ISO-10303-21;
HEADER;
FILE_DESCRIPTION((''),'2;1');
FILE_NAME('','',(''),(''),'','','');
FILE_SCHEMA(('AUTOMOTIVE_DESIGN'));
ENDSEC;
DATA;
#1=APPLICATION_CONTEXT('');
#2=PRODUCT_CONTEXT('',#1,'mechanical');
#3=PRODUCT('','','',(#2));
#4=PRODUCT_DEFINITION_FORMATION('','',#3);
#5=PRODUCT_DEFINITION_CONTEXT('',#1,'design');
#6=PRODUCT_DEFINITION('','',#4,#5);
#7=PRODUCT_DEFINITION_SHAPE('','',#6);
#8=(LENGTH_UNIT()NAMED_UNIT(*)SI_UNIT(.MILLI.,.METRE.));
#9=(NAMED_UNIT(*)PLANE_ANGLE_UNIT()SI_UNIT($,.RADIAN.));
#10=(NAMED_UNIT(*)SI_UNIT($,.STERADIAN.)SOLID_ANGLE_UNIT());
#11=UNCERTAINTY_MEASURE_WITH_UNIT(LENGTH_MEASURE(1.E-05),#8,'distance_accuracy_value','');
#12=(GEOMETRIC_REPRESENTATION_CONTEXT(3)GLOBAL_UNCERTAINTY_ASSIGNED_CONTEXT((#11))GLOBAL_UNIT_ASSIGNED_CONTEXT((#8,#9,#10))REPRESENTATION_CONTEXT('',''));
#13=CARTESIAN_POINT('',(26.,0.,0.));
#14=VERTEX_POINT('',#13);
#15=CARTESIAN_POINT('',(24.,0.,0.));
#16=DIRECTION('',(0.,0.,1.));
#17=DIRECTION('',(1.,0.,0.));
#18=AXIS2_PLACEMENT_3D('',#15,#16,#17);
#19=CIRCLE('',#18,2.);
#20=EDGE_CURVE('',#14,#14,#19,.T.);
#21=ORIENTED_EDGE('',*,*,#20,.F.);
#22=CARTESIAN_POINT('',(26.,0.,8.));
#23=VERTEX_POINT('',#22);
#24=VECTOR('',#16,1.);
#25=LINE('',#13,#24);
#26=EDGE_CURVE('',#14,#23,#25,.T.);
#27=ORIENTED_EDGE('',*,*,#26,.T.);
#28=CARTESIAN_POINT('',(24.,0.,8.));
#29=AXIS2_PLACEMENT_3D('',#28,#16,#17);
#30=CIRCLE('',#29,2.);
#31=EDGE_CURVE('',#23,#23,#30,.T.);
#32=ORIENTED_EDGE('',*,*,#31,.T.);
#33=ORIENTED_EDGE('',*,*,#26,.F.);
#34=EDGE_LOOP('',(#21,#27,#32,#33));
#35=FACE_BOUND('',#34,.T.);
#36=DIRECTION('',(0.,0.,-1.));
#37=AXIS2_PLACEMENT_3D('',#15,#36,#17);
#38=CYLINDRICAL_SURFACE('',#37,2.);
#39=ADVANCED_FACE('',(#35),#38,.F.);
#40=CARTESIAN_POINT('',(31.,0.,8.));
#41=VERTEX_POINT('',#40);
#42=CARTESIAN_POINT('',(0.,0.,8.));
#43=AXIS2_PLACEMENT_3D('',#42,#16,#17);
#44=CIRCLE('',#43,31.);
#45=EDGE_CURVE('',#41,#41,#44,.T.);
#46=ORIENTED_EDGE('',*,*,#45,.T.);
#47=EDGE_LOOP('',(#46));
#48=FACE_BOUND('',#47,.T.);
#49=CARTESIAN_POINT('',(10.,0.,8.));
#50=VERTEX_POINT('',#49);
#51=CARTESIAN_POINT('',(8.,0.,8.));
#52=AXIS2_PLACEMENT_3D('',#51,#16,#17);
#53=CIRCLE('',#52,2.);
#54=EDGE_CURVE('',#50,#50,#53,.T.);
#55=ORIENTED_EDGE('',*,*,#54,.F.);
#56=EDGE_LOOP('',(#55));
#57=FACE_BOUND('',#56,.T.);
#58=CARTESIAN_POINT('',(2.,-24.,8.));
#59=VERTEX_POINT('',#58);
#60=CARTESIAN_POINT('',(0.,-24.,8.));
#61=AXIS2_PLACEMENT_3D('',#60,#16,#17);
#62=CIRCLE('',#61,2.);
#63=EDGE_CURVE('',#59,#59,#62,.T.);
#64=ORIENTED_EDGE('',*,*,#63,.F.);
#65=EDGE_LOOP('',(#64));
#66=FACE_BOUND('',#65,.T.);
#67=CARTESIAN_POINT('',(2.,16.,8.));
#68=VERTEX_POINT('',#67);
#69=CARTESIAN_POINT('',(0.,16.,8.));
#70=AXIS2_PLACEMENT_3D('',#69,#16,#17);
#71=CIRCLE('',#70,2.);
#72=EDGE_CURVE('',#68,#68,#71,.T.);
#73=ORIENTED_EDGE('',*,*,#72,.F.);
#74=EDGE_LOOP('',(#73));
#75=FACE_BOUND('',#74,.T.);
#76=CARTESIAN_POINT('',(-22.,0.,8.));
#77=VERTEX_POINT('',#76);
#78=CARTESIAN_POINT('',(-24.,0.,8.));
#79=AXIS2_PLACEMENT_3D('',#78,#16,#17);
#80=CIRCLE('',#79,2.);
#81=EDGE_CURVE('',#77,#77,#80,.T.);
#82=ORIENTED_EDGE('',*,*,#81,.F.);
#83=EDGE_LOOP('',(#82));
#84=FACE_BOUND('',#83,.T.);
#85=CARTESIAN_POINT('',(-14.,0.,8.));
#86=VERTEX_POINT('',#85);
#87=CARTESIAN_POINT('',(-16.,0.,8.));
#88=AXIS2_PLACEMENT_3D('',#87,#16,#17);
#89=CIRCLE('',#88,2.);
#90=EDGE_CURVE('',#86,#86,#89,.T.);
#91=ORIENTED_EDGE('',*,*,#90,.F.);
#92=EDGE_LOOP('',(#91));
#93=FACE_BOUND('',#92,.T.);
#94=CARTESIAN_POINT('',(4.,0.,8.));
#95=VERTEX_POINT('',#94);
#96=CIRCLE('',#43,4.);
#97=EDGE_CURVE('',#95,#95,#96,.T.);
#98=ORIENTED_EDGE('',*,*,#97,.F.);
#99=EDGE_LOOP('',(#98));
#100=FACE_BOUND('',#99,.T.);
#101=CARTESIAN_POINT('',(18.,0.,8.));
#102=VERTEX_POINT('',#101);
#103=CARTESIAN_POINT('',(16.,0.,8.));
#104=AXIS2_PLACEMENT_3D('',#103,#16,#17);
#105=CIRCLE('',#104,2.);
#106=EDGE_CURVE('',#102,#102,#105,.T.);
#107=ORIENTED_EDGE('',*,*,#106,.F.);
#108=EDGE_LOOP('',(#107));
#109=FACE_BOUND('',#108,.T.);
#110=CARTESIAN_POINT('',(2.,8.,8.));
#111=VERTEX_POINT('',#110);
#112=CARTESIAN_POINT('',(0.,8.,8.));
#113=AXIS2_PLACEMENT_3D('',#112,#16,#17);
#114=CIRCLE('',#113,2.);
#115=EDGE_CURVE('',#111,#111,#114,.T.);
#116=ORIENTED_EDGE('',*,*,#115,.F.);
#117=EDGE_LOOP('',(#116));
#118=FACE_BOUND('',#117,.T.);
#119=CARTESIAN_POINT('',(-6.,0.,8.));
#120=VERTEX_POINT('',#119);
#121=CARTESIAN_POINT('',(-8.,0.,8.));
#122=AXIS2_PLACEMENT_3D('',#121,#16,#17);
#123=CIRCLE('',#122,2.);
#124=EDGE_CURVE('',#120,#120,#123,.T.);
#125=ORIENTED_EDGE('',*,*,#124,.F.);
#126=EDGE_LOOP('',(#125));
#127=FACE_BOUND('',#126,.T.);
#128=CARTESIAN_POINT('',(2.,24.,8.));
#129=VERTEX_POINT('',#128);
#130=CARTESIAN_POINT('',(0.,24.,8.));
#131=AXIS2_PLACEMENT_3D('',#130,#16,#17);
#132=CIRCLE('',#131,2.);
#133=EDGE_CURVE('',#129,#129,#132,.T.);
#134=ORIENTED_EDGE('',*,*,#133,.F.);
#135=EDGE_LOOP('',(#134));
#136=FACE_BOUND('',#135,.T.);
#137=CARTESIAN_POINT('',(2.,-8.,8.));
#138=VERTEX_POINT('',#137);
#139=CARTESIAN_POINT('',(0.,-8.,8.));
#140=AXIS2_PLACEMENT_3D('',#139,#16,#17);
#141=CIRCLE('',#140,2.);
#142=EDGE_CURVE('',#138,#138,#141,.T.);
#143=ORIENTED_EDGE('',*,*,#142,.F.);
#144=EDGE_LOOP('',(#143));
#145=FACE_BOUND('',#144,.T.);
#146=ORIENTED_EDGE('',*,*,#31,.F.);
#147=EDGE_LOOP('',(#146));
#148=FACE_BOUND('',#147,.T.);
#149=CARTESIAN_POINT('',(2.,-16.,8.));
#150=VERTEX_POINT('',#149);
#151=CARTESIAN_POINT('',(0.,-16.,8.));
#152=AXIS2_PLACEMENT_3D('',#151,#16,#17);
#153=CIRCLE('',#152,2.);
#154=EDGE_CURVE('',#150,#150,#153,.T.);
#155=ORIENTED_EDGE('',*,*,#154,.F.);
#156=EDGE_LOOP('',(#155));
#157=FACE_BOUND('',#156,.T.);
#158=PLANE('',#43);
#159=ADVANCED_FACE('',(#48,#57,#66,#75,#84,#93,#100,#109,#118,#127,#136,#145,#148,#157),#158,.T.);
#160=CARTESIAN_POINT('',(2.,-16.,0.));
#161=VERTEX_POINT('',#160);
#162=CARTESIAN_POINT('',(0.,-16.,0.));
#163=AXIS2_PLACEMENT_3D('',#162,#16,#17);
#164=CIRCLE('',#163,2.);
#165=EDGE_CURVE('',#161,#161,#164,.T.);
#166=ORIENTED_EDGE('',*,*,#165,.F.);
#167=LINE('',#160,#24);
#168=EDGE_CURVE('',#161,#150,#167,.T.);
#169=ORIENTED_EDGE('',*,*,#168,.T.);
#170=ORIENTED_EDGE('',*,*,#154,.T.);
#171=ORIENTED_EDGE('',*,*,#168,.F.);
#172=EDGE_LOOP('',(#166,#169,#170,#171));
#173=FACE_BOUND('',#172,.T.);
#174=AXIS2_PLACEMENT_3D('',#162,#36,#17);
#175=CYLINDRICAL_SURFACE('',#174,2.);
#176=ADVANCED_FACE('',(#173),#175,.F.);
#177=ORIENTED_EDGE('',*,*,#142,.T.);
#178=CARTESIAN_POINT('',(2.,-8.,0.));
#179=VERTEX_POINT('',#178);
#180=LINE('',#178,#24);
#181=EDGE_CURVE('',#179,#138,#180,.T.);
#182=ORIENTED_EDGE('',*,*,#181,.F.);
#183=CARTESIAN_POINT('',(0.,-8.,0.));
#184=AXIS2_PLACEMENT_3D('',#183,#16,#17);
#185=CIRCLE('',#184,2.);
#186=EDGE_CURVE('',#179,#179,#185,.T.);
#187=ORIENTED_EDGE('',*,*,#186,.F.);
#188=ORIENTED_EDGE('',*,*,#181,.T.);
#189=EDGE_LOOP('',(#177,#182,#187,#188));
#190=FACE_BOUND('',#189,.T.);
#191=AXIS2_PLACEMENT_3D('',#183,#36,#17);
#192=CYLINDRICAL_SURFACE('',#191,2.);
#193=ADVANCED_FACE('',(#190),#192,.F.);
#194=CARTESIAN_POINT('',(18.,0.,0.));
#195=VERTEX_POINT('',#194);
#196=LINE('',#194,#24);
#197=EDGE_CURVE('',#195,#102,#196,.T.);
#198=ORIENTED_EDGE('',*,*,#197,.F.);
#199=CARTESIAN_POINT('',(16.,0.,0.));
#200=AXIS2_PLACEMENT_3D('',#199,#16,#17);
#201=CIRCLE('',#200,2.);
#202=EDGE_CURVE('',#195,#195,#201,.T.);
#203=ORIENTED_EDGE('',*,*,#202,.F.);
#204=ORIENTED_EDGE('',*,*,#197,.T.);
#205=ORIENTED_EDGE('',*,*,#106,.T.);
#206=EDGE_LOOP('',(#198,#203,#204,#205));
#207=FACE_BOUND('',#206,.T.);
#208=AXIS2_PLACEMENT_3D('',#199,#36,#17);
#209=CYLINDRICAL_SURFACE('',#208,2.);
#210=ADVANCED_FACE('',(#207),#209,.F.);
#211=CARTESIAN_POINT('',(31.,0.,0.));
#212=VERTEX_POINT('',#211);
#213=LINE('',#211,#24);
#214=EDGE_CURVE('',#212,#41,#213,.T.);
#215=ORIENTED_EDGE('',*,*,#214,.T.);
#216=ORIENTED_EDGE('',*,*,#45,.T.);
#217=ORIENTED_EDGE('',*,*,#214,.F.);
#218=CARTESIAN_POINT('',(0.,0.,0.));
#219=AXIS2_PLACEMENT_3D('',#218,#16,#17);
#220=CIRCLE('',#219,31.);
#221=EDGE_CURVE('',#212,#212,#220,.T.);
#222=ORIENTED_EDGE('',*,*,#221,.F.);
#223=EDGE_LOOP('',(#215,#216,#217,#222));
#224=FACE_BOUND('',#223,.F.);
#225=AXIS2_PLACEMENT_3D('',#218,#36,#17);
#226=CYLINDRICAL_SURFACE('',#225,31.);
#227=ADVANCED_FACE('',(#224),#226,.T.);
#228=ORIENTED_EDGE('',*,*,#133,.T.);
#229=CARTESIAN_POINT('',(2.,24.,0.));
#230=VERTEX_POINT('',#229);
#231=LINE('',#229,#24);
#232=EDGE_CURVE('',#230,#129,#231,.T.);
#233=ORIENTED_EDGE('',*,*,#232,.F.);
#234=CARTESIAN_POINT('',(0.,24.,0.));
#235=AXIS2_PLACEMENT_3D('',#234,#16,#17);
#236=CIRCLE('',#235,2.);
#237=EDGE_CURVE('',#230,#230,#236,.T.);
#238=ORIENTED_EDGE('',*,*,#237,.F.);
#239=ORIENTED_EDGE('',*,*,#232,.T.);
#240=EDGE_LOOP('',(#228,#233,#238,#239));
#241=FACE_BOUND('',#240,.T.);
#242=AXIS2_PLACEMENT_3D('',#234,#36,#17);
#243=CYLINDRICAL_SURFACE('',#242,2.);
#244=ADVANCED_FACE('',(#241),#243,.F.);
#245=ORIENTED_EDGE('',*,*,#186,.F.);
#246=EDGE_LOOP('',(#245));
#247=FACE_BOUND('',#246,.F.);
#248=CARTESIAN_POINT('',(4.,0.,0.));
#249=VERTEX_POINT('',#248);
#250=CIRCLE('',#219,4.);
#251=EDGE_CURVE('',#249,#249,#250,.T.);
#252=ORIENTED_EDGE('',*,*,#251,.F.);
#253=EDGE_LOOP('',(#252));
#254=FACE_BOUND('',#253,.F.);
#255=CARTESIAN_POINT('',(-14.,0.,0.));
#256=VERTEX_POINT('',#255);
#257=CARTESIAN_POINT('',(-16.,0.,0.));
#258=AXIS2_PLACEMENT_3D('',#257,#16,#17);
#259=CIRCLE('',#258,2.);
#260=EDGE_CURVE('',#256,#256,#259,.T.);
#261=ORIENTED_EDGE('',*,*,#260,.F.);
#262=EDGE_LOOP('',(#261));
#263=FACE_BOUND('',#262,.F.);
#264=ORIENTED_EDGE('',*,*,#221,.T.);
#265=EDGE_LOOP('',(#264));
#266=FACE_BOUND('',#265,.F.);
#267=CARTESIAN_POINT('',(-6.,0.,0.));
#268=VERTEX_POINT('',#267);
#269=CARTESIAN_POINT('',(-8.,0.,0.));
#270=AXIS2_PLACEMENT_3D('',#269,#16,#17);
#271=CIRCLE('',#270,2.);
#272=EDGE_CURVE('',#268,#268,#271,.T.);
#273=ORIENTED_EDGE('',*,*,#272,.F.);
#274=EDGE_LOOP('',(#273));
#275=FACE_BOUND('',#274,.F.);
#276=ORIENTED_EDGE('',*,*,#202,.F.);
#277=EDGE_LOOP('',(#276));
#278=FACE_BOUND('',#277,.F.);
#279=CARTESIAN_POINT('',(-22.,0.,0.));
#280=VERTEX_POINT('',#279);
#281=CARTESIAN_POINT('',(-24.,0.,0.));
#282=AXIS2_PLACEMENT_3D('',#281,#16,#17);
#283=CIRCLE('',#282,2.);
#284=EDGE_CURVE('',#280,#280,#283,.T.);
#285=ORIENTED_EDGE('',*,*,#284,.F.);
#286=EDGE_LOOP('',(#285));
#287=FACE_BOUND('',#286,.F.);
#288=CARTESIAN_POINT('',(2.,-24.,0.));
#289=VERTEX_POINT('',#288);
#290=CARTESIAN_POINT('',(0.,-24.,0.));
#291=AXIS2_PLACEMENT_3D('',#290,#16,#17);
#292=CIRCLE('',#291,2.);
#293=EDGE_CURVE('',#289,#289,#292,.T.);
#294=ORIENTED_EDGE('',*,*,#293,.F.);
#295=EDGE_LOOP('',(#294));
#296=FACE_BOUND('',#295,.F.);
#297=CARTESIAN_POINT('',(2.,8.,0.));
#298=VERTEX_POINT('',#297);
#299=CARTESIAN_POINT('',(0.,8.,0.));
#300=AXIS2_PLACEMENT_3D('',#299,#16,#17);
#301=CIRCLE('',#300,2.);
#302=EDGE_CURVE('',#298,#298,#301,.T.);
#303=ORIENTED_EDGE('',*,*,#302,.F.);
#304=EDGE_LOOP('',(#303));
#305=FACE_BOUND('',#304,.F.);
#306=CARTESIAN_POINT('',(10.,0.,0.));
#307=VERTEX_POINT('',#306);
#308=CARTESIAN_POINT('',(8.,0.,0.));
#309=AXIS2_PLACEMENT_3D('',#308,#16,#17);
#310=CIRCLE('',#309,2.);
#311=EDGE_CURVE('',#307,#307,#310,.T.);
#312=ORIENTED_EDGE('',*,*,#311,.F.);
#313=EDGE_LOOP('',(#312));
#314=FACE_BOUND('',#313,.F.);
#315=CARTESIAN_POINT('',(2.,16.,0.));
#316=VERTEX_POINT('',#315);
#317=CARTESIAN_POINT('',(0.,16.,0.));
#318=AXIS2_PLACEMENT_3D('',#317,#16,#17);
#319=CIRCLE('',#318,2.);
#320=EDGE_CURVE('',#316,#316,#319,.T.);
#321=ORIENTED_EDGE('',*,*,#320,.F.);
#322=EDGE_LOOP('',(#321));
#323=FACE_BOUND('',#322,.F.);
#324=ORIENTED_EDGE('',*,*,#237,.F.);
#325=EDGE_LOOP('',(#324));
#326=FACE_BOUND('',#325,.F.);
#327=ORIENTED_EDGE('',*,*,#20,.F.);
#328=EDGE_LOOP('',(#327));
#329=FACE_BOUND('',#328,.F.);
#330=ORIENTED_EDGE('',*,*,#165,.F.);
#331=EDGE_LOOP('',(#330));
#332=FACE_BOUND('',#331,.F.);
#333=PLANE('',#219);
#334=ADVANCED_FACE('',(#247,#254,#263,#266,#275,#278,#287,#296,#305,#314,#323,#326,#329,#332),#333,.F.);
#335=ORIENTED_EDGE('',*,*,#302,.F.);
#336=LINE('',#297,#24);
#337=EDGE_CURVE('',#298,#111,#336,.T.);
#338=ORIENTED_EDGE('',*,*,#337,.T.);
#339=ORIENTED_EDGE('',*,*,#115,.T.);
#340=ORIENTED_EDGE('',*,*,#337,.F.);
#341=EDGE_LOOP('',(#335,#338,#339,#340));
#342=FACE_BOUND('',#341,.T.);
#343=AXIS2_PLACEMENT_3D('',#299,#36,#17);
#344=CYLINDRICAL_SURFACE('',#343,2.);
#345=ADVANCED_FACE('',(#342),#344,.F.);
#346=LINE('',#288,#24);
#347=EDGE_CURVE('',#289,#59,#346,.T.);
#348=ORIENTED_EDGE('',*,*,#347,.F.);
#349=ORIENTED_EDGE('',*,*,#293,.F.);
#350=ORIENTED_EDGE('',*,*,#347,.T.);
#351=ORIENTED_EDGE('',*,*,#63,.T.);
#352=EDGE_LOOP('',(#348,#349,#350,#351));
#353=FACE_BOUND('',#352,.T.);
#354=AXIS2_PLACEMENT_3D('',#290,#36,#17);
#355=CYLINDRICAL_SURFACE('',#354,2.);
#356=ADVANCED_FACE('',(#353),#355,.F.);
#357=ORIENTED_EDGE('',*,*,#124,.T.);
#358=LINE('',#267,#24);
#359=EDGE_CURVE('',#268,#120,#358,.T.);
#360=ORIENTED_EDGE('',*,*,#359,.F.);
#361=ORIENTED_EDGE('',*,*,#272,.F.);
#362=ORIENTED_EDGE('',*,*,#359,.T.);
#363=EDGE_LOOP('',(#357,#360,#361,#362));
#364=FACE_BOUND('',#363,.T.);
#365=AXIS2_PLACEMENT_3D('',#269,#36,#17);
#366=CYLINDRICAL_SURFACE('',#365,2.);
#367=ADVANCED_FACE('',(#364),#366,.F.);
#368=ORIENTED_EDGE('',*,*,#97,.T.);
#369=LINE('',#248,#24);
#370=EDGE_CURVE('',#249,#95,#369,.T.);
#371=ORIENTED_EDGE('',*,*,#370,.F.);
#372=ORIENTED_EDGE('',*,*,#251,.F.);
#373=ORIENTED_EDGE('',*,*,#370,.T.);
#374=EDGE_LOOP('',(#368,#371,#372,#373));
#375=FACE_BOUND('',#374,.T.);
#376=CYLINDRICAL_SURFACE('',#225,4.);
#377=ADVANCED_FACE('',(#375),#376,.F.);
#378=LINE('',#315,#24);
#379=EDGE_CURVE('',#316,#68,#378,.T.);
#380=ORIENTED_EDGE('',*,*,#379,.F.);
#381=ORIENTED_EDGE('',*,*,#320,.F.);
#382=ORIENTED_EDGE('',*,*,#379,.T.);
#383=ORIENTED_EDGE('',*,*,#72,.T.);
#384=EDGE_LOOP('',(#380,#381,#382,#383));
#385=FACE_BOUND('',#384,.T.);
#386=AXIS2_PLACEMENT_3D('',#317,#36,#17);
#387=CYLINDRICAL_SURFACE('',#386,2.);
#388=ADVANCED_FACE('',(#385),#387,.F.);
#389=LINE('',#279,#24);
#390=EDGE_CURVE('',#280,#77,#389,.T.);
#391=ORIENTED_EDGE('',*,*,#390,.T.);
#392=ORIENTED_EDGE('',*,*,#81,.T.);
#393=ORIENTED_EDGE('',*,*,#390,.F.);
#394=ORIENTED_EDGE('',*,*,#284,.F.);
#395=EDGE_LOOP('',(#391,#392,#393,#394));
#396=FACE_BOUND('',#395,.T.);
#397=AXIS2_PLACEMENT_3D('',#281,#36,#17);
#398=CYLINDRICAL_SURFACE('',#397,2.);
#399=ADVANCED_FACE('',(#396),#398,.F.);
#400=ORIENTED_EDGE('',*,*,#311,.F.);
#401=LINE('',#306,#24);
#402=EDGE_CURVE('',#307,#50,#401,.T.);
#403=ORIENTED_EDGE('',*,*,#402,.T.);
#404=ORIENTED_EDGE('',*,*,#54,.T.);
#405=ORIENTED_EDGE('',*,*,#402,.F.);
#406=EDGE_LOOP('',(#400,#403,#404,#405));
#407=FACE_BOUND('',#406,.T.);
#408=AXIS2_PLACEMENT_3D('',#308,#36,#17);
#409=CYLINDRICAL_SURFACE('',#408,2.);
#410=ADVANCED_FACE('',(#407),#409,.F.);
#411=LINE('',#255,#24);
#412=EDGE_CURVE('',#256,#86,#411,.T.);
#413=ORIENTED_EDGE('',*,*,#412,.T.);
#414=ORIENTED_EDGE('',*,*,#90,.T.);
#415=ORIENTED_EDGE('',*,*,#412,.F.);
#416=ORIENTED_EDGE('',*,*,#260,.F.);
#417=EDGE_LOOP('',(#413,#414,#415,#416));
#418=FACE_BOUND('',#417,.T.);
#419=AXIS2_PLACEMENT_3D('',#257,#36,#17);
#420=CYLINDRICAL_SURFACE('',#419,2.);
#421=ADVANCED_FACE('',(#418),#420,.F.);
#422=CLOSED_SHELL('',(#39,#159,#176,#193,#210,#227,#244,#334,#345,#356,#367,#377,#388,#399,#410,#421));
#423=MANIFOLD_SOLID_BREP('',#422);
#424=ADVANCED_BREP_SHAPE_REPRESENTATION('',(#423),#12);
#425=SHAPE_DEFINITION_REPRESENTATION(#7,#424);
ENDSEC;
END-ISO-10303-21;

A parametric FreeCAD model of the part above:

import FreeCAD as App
import Part
import Sketcher

doc = App.newDocument("Part")
body = doc.addObject("PartDesign::Body", "Body")

sketch1 = body.newObject("Sketcher::SketchObject", "Sketch")
sketch1.AttachmentSupport = (doc.getObject("XY_Plane"), [""])
sketch1.MapMode = "FlatFace"
sketch1.addGeometry([
    Part.Circle(App.Vector(0, 0, 0), App.Vector(0, 0, 1), 31),
    Part.Circle(App.Vector(0, -24, 0), App.Vector(0, 0, 1), 2),
    Part.Circle(App.Vector(0, -16, 0), App.Vector(0, 0, 1), 2),
    Part.Circle(App.Vector(0, -8, 0), App.Vector(0, 0, 1), 2),
    Part.Circle(App.Vector(-24, 0, 0), App.Vector(0, 0, 1), 2),
    Part.Circle(App.Vector(-16, 0, 0), App.Vector(0, 0, 1), 2),
    Part.Circle(App.Vector(-8, 0, 0), App.Vector(0, 0, 1), 2),
    Part.Circle(App.Vector(0, 0, 0), App.Vector(0, 0, 1), 4),
    Part.Circle(App.Vector(8, 0, 0), App.Vector(0, 0, 1), 2),
    Part.Circle(App.Vector(0, 8, 0), App.Vector(0, 0, 1), 2),
    Part.Circle(App.Vector(16, 0, 0), App.Vector(0, 0, 1), 2),
    Part.Circle(App.Vector(24, 0, 0), App.Vector(0, 0, 1), 2),
    Part.Circle(App.Vector(0, 16, 0), App.Vector(0, 0, 1), 2),
    Part.Circle(App.Vector(0, 24, 0), App.Vector(0, 0, 1), 2),
], False)
sketch1.addConstraint([
    Sketcher.Constraint("Coincident", 0, 3, -1, 1),
    Sketcher.Constraint("Coincident", 7, 3, -1, 1),
    Sketcher.Constraint("Equal", 1, 2),
    Sketcher.Constraint("Equal", 2, 3),
    Sketcher.Constraint("Equal", 3, 4),
    Sketcher.Constraint("Equal", 4, 5),
    Sketcher.Constraint("Equal", 5, 6),
    Sketcher.Constraint("Equal", 6, 8),
    Sketcher.Constraint("Equal", 8, 9),
    Sketcher.Constraint("Equal", 9, 10),
    Sketcher.Constraint("Equal", 10, 11),
    Sketcher.Constraint("Equal", 11, 12),
    Sketcher.Constraint("Equal", 12, 13),
    Sketcher.Constraint("Symmetric", 6, 3, 8, 3, -1, 1),
    Sketcher.Constraint("Symmetric", 3, 3, 9, 3, -1, 1),
    Sketcher.Constraint("Symmetric", 5, 3, 10, 3, -1, 1),
    Sketcher.Constraint("Symmetric", 4, 3, 11, 3, -1, 1),
    Sketcher.Constraint("Symmetric", 2, 3, 12, 3, -1, 1),
    Sketcher.Constraint("Symmetric", 1, 3, 13, 3, -1, 1),
    Sketcher.Constraint("PointOnObject", 1, 3, -2),
    Sketcher.Constraint("PointOnObject", 2, 3, -2),
    Sketcher.Constraint("PointOnObject", 3, 3, -2),
    Sketcher.Constraint("PointOnObject", 4, 3, -1),
    Sketcher.Constraint("PointOnObject", 5, 3, -1),
    Sketcher.Constraint("PointOnObject", 6, 3, -1),
    Sketcher.Constraint("Diameter", 0, 62.0),
    Sketcher.Constraint("Diameter", 1, 4.0),
    Sketcher.Constraint("Diameter", 7, 8.0),
    Sketcher.Constraint("DistanceY", 1, 3, -1, 1, 24.0),
    Sketcher.Constraint("DistanceY", 2, 3, -1, 1, 16.0),
    Sketcher.Constraint("DistanceY", 3, 3, -1, 1, 8.0),
    Sketcher.Constraint("DistanceX", 4, 3, -1, 1, 24.0),
    Sketcher.Constraint("DistanceX", 5, 3, -1, 1, 16.0),
    Sketcher.Constraint("DistanceX", 6, 3, -1, 1, 8.0),
])
pad1 = body.newObject("PartDesign::Pad", "Pad")
pad1.Profile = sketch1
pad1.Length = 8

doc.recompute()
